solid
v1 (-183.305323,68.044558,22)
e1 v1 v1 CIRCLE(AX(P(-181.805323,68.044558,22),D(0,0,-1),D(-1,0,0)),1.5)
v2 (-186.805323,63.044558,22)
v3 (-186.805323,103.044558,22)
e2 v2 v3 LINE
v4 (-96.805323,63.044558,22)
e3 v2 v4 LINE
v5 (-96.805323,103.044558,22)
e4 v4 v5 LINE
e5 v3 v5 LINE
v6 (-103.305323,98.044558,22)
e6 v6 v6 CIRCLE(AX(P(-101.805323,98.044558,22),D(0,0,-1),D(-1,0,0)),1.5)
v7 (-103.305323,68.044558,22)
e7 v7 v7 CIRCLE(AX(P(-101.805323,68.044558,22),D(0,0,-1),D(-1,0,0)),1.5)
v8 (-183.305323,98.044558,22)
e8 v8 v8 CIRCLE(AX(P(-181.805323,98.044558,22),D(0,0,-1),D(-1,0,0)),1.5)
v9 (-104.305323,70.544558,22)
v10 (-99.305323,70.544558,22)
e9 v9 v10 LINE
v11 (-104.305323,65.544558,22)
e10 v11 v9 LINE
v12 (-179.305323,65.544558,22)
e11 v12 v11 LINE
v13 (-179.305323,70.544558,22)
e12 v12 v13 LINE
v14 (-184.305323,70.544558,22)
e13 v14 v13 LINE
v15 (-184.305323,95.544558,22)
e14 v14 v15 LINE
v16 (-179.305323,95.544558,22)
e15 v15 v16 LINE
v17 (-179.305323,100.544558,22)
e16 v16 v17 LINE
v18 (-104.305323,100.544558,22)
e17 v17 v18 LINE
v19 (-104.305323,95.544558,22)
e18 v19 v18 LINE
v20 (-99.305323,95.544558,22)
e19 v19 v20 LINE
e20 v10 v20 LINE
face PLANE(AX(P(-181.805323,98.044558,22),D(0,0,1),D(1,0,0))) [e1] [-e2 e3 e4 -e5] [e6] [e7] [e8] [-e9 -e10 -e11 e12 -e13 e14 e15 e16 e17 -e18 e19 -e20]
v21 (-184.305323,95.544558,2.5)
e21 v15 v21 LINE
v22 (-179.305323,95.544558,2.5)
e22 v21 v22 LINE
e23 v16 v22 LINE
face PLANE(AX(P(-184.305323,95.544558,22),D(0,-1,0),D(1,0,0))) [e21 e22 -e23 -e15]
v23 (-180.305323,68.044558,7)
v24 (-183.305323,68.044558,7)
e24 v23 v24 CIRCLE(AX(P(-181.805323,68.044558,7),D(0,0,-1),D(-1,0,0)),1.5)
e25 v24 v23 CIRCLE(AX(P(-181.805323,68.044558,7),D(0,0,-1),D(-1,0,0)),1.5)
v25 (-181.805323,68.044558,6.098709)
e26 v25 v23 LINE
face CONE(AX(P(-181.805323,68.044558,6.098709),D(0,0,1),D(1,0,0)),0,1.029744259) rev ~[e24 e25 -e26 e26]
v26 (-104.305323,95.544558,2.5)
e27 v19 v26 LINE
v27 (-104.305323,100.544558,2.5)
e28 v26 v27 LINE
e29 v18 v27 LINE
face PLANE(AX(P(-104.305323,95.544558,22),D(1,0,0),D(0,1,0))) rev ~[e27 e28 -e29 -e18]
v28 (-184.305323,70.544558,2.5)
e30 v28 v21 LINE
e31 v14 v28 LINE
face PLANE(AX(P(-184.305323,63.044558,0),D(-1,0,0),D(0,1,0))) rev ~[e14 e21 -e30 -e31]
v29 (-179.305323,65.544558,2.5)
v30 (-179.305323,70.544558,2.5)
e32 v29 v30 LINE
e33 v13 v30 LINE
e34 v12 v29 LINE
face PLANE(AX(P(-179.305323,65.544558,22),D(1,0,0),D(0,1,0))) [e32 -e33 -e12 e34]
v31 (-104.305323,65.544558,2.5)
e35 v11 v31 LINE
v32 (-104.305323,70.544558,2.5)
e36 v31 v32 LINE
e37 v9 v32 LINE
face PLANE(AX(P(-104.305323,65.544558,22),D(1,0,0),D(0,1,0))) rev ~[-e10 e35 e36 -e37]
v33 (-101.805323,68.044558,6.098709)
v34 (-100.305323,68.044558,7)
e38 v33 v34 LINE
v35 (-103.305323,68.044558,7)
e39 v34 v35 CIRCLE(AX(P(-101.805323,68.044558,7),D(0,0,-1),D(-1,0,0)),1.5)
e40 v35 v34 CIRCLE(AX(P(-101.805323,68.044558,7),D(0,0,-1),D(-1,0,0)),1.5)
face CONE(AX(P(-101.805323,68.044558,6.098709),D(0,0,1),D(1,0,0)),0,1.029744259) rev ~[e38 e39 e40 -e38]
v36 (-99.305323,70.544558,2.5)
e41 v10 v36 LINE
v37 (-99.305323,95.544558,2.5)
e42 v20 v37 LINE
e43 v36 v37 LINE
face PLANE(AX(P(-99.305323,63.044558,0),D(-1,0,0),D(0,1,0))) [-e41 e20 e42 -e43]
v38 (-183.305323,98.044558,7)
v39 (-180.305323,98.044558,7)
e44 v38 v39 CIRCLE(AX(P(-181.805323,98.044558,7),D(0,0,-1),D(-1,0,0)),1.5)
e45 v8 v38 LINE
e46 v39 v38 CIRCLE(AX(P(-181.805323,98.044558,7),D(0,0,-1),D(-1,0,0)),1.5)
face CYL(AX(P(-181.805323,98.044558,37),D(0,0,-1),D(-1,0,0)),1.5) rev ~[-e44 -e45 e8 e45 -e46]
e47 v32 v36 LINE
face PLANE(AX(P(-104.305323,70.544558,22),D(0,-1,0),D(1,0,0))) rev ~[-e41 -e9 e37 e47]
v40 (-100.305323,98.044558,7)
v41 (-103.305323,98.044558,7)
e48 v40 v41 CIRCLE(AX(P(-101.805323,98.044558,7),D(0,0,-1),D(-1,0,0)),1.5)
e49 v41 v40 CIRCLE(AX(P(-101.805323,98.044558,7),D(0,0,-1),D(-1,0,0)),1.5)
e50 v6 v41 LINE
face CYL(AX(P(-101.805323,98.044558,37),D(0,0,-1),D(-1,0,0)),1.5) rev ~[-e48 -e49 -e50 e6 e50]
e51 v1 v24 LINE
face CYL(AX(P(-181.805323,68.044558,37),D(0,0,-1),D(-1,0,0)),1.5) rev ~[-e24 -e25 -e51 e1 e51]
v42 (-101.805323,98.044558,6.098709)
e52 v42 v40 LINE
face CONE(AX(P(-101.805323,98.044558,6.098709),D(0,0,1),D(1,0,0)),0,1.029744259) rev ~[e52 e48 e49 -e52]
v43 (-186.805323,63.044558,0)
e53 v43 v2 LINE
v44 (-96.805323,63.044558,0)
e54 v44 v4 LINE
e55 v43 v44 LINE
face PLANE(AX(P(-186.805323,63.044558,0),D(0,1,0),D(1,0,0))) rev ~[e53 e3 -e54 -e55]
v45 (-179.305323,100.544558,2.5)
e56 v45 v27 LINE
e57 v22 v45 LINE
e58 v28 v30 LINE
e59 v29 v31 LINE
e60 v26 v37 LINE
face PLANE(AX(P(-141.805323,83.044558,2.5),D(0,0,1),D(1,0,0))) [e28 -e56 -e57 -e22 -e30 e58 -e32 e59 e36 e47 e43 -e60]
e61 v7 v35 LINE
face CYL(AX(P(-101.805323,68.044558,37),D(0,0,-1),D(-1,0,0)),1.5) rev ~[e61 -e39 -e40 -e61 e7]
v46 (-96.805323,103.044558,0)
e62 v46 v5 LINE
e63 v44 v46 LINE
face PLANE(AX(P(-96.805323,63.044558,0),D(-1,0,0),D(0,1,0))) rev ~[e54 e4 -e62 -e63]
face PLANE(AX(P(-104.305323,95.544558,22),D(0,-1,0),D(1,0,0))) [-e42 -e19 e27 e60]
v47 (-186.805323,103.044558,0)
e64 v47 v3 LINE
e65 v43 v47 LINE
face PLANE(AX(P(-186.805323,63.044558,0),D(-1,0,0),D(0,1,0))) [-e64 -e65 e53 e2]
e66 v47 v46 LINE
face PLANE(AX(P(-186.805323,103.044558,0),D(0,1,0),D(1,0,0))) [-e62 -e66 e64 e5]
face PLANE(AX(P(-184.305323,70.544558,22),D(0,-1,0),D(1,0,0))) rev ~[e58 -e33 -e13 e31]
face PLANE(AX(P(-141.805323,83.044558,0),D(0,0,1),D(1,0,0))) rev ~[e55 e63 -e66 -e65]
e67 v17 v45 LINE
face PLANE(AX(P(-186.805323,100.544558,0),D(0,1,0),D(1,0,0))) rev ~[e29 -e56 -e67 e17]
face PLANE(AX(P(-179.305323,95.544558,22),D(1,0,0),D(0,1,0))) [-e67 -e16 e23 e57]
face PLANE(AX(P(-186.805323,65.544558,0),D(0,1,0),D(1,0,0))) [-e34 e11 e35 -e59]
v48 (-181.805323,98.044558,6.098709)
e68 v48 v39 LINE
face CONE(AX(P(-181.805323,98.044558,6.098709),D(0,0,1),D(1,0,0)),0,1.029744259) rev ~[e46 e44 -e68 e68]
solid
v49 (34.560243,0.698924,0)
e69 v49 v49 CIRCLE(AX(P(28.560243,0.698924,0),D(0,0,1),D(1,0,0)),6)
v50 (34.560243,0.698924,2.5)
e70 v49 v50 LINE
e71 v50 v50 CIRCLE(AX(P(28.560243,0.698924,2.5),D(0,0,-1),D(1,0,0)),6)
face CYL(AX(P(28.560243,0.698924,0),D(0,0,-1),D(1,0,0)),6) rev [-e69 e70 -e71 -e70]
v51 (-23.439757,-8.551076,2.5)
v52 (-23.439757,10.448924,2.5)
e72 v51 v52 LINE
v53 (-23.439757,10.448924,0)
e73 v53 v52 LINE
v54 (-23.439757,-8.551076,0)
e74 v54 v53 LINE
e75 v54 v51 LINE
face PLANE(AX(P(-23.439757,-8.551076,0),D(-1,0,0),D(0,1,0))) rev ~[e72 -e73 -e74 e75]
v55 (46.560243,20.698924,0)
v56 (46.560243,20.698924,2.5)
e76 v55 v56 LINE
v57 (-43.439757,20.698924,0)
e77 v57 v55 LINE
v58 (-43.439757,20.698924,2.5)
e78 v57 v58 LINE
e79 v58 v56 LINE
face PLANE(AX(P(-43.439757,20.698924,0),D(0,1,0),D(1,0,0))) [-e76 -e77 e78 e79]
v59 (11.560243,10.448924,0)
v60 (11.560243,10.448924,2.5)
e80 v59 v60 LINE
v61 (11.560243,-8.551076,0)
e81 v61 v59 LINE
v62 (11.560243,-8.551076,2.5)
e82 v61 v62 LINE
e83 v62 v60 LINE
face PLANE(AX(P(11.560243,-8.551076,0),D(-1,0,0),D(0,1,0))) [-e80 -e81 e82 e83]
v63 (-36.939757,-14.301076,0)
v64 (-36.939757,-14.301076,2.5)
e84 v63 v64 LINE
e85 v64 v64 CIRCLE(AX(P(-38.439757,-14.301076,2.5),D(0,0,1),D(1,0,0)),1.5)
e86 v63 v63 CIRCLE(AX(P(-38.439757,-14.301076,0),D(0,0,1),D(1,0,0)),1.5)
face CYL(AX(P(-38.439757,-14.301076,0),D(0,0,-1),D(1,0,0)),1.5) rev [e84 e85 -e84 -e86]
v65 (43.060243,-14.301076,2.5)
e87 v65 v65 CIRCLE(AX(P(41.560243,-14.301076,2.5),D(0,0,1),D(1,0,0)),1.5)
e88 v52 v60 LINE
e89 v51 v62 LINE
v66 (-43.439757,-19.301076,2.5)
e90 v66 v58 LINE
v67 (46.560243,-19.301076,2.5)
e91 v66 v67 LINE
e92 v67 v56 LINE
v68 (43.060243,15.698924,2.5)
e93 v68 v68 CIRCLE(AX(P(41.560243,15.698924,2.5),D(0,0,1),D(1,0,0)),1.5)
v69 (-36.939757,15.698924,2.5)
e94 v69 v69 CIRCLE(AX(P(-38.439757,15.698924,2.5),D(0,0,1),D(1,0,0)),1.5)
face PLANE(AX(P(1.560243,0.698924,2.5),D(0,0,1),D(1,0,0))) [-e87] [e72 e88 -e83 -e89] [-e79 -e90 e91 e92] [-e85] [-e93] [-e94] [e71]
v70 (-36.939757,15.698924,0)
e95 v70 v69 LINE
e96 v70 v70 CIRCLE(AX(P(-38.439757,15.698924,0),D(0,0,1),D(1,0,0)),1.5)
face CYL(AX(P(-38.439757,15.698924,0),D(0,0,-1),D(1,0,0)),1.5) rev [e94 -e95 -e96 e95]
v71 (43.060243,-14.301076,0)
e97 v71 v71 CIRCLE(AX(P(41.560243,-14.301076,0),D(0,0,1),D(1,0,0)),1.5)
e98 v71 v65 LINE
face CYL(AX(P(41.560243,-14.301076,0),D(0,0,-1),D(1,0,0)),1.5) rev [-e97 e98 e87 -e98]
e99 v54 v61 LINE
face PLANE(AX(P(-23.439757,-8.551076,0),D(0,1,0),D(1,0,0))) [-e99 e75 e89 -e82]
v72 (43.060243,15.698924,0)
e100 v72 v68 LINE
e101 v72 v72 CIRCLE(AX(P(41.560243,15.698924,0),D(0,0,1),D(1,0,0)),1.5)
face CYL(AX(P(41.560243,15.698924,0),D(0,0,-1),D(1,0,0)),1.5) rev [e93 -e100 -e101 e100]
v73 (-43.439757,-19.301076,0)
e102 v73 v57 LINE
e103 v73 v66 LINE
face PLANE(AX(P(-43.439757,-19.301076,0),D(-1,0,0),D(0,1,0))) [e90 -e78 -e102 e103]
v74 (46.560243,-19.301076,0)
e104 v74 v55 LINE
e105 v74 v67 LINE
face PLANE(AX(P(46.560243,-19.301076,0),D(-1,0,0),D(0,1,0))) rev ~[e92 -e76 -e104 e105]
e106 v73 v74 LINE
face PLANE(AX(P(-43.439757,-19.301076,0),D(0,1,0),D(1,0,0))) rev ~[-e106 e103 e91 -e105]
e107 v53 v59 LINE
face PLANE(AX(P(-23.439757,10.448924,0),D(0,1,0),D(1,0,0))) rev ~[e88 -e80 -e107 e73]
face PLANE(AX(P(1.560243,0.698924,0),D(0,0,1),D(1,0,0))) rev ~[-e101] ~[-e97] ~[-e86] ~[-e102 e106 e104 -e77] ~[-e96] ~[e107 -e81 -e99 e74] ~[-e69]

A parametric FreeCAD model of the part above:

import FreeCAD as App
import Part
import Sketcher
Q = App.Units.Quantity


def faces_at(feature, points):
    """Names of the faces that lie closest to the given points."""
    faces = feature.Shape.Faces
    near = lambda p: min(range(len(faces)), key=lambda i: faces[i].distToShape(Part.Vertex(*p))[0])
    return sorted({f"Face{near(p) + 1}" for p in points})

doc = App.newDocument("Part")
body = doc.addObject("PartDesign::Body", "Body")

sketch1 = body.newObject("Sketcher::SketchObject", "Sketch")
sketch1.AttachmentSupport = (doc.getObject("XY_Plane"), [""])
sketch1.MapMode = "FlatFace"
sketch1.addGeometry([
    Part.LineSegment(App.Vector(-186.805323, 103.044558, 0), App.Vector(-186.805323, 63.044558, 0)),
    Part.LineSegment(App.Vector(-186.805323, 63.044558, 0), App.Vector(-96.805323, 63.044558, 0)),
    Part.LineSegment(App.Vector(-96.805323, 63.044558, 0), App.Vector(-96.805323, 103.044558, 0)),
    Part.LineSegment(App.Vector(-96.805323, 103.044558, 0), App.Vector(-186.805323, 103.044558, 0)),
], False)
sketch1.addConstraint([
    Sketcher.Constraint("Coincident", 0, 2, 1, 1),
    Sketcher.Constraint("Coincident", 1, 2, 2, 1),
    Sketcher.Constraint("Coincident", 2, 2, 3, 1),
    Sketcher.Constraint("Coincident", 3, 2, 0, 1),
    Sketcher.Constraint("Vertical", 0),
    Sketcher.Constraint("Horizontal", 1),
    Sketcher.Constraint("Vertical", 2),
    Sketcher.Constraint("Horizontal", 3),
    Sketcher.Constraint("DistanceX", 1, 1, 1, 2, Q("90 mm")),
    Sketcher.Constraint("DistanceY", 0, 2, 0, 1, Q("40 mm")),
    Sketcher.Constraint("DistanceY", -1, 1, 0, 2, Q("63.044558 mm")),
    Sketcher.Constraint("DistanceX", 0, 2, -1, 1, Q("186.805323 mm")),
])
pad1 = body.newObject("PartDesign::Pad", "Pad")
pad1.Profile = sketch1
pad1.Length = 22
doc.recompute()

thickness = body.newObject("PartDesign::Thickness", "Thickness")
thickness.Base = (pad1, faces_at(pad1, [(-141.805, 83.045, 22)]))
thickness.Value = 2.5
thickness.Reversed = True
thickness.Join = "Arc"

sketch2 = body.newObject("Sketcher::SketchObject", "Sketch001")
sketch2.AttachmentSupport = (doc.getObject("XY_Plane"), [""])
sketch2.MapMode = "FlatFace"
sketch2.AttachmentOffset = App.Placement(App.Vector(0, 0, 22), App.Rotation())
sketch2.addGeometry([
    Part.LineSegment(App.Vector(-184.305323, 100.544558, 0), App.Vector(-184.305323, 95.544558, 0)),
    Part.LineSegment(App.Vector(-184.305323, 95.544558, 0), App.Vector(-179.305323, 95.544558, 0)),
    Part.LineSegment(App.Vector(-179.305323, 95.544558, 0), App.Vector(-179.305323, 100.544558, 0)),
    Part.LineSegment(App.Vector(-179.305323, 100.544558, 0), App.Vector(-184.305323, 100.544558, 0)),
    Part.LineSegment(App.Vector(-104.305323, 100.544558, 0), App.Vector(-104.305323, 95.544558, 0)),
    Part.LineSegment(App.Vector(-104.305323, 95.544558, 0), App.Vector(-99.305323, 95.544558, 0)),
    Part.LineSegment(App.Vector(-99.305323, 95.544558, 0), App.Vector(-99.305323, 100.544558, 0)),
    Part.LineSegment(App.Vector(-99.305323, 100.544558, 0), App.Vector(-104.305323, 100.544558, 0)),
    Part.LineSegment(App.Vector(-104.305323, 70.544558, 0), App.Vector(-104.305323, 65.544558, 0)),
    Part.LineSegment(App.Vector(-104.305323, 65.544558, 0), App.Vector(-99.305323, 65.544558, 0)),
    Part.LineSegment(App.Vector(-99.305323, 65.544558, 0), App.Vector(-99.305323, 70.544558, 0)),
    Part.LineSegment(App.Vector(-99.305323, 70.544558, 0), App.Vector(-104.305323, 70.544558, 0)),
    Part.LineSegment(App.Vector(-184.305323, 70.544558, 0), App.Vector(-184.305323, 65.544558, 0)),
    Part.LineSegment(App.Vector(-184.305323, 65.544558, 0), App.Vector(-179.305323, 65.544558, 0)),
    Part.LineSegment(App.Vector(-179.305323, 65.544558, 0), App.Vector(-179.305323, 70.544558, 0)),
    Part.LineSegment(App.Vector(-179.305323, 70.544558, 0), App.Vector(-184.305323, 70.544558, 0)),
], False)
sketch2.addConstraint([
    Sketcher.Constraint("Coincident", 0, 2, 1, 1),
    Sketcher.Constraint("Coincident", 1, 2, 2, 1),
    Sketcher.Constraint("Coincident", 2, 2, 3, 1),
    Sketcher.Constraint("Coincident", 3, 2, 0, 1),
    Sketcher.Constraint("Coincident", 4, 2, 5, 1),
    Sketcher.Constraint("Coincident", 5, 2, 6, 1),
    Sketcher.Constraint("Coincident", 6, 2, 7, 1),
    Sketcher.Constraint("Coincident", 7, 2, 4, 1),
    Sketcher.Constraint("Coincident", 8, 2, 9, 1),
    Sketcher.Constraint("Coincident", 9, 2, 10, 1),
    Sketcher.Constraint("Coincident", 10, 2, 11, 1),
    Sketcher.Constraint("Coincident", 11, 2, 8, 1),
    Sketcher.Constraint("Coincident", 12, 2, 13, 1),
    Sketcher.Constraint("Coincident", 13, 2, 14, 1),
    Sketcher.Constraint("Coincident", 14, 2, 15, 1),
    Sketcher.Constraint("Coincident", 15, 2, 12, 1),
    Sketcher.Constraint("Vertical", 0),
    Sketcher.Constraint("Horizontal", 1),
    Sketcher.Constraint("Vertical", 2),
    Sketcher.Constraint("Horizontal", 3),
    Sketcher.Constraint("Vertical", 4),
    Sketcher.Constraint("Horizontal", 5),
    Sketcher.Constraint("Vertical", 6),
    Sketcher.Constraint("Horizontal", 7),
    Sketcher.Constraint("Vertical", 8),
    Sketcher.Constraint("Horizontal", 9),
    Sketcher.Constraint("Vertical", 10),
    Sketcher.Constraint("Horizontal", 11),
    Sketcher.Constraint("Vertical", 12),
    Sketcher.Constraint("Horizontal", 13),
    Sketcher.Constraint("Vertical", 14),
    Sketcher.Constraint("Horizontal", 15),
    Sketcher.Constraint("Horizontal", 1, 2, 4, 2),
    Sketcher.Constraint("Horizontal", 3, 2, 6, 2),
    Sketcher.Constraint("Horizontal", 9, 2, 12, 2),
    Sketcher.Constraint("Horizontal", 11, 2, 14, 2),
    Sketcher.Constraint("Vertical", 7, 2, 8, 2),
    Sketcher.Constraint("Vertical", 6, 2, 9, 2),
    Sketcher.Constraint("Vertical", 3, 2, 12, 2),
    Sketcher.Constraint("Vertical", 2, 2, 13, 2),
    Sketcher.Constraint("Equal", 3, 5),
    Sketcher.Constraint("Equal", 15, 0),
    Sketcher.Constraint("Equal", 6, 8),
    Sketcher.Constraint("DistanceX", 1, 1, 1, 2, Q("5 mm")),
    Sketcher.Constraint("DistanceX", 1, 2, 4, 2, Q("75 mm")),
    Sketcher.Constraint("DistanceY", 8, 2, 4, 2, Q("30 mm")),
    Sketcher.Constraint("DistanceY", -1, 1, 0, 2, Q("95.544558 mm")),
    Sketcher.Constraint("DistanceX", 0, 2, -1, 1, Q("184.305323 mm")),
])
pad2 = body.newObject("PartDesign::Pad", "Pad001")
pad2.Profile = sketch2
pad2.Length = 22
pad2.Reversed = True

sketch3 = body.newObject("Sketcher::SketchObject", "Sketch002")
sketch3.AttachmentSupport = (doc.getObject("XY_Plane"), [""])
sketch3.MapMode = "FlatFace"
sketch3.AttachmentOffset = App.Placement(App.Vector(0, 0, 22), App.Rotation())
sketch3.addGeometry([
    Part.Circle(App.Vector(-181.805323, 98.044558, 0), App.Vector(0, 0, 1), 1.5),
    Part.Circle(App.Vector(-181.805323, 68.044558, 0), App.Vector(0, 0, 1), 1.5),
    Part.Circle(App.Vector(-101.805323, 98.044558, 0), App.Vector(0, 0, 1), 1.5),
    Part.Circle(App.Vector(-101.805323, 68.044558, 0), App.Vector(0, 0, 1), 1.5),
], False)
sketch3.addConstraint([
    Sketcher.Constraint("Equal", 0, 1),
    Sketcher.Constraint("Equal", 1, 2),
    Sketcher.Constraint("Equal", 2, 3),
    Sketcher.Constraint("Horizontal", 0, 3, 2, 3),
    Sketcher.Constraint("Horizontal", 1, 3, 3, 3),
    Sketcher.Constraint("Vertical", 0, 3, 1, 3),
    Sketcher.Constraint("Vertical", 2, 3, 3, 3),
    Sketcher.Constraint("Diameter", 0, Q("3 mm")),
    Sketcher.Constraint("DistanceY", 1, 3, 0, 3, Q("30 mm")),
    Sketcher.Constraint("DistanceX", 0, 3, 2, 3, Q("80 mm")),
    Sketcher.Constraint("DistanceY", -1, 1, 0, 3, Q("98.044558 mm")),
    Sketcher.Constraint("DistanceX", 0, 3, -1, 1, Q("181.805323 mm")),
])
doc.recompute()
hole = body.newObject("PartDesign::Hole", "Hole")
hole.Profile = sketch3
hole.ThreadType = "None"
hole.Diameter = 3
hole.DepthType = "Dimension"
hole.Depth = 15
hole.DrillPoint = "Angled"
hole.DrillPointAngle = 118
body2 = doc.addObject("PartDesign::Body", "Body001")

sketch4 = body2.newObject("Sketcher::SketchObject", "Sketch003")
sketch4.AttachmentSupport = (doc.getObject("XY_Plane001"), [""])
sketch4.MapMode = "FlatFace"
sketch4.addGeometry([
    Part.LineSegment(App.Vector(-43.439757, 20.698924, 0), App.Vector(-43.439757, -19.301076, 0)),
    Part.LineSegment(App.Vector(-43.439757, -19.301076, 0), App.Vector(46.560243, -19.301076, 0)),
    Part.LineSegment(App.Vector(46.560243, -19.301076, 0), App.Vector(46.560243, 20.698924, 0)),
    Part.LineSegment(App.Vector(46.560243, 20.698924, 0), App.Vector(-43.439757, 20.698924, 0)),
    Part.Circle(App.Vector(-38.439757, -14.301076, 0), App.Vector(0, 0, 1), 1.5),
    Part.Circle(App.Vector(41.560243, -14.301076, 0), App.Vector(0, 0, 1), 1.5),
    Part.LineSegment(App.Vector(11.560243, -8.551076, 0), App.Vector(-23.439757, -8.551076, 0)),
    Part.LineSegment(App.Vector(-23.439757, -8.551076, 0), App.Vector(-23.439757, 10.448924, 0)),
    Part.LineSegment(App.Vector(-23.439757, 10.448924, 0), App.Vector(11.560243, 10.448924, 0)),
    Part.LineSegment(App.Vector(11.560243, 10.448924, 0), App.Vector(11.560243, -8.551076, 0)),
    Part.Circle(App.Vector(-38.439757, 15.698924, 0), App.Vector(0, 0, 1), 1.5),
    Part.Circle(App.Vector(41.560243, 15.698924, 0), App.Vector(0, 0, 1), 1.5),
], False)
sketch4.addConstraint([
    Sketcher.Constraint("Coincident", 0, 2, 1, 1),
    Sketcher.Constraint("Coincident", 1, 2, 2, 1),
    Sketcher.Constraint("Coincident", 2, 2, 3, 1),
    Sketcher.Constraint("Coincident", 3, 2, 0, 1),
    Sketcher.Constraint("Coincident", 6, 2, 7, 1),
    Sketcher.Constraint("Coincident", 7, 2, 8, 1),
    Sketcher.Constraint("Coincident", 8, 2, 9, 1),
    Sketcher.Constraint("Coincident", 9, 2, 6, 1),
    Sketcher.Constraint("Vertical", 0),
    Sketcher.Constraint("Horizontal", 1),
    Sketcher.Constraint("Vertical", 2),
    Sketcher.Constraint("Horizontal", 3),
    Sketcher.Constraint("Horizontal", 6),
    Sketcher.Constraint("Vertical", 7),
    Sketcher.Constraint("Horizontal", 8),
    Sketcher.Constraint("Vertical", 9),
    Sketcher.Constraint("Equal", 4, 5),
    Sketcher.Constraint("Equal", 5, 10),
    Sketcher.Constraint("Equal", 10, 11),
    Sketcher.Constraint("Horizontal", 4, 3, 5, 3),
    Sketcher.Constraint("Horizontal", 10, 3, 11, 3),
    Sketcher.Constraint("Vertical", 4, 3, 10, 3),
    Sketcher.Constraint("Vertical", 5, 3, 11, 3),
    Sketcher.Constraint("Diameter", 4, Q("3 mm")),
    Sketcher.Constraint("DistanceX", 1, 1, 1, 2, Q("90 mm")),
    Sketcher.Constraint("DistanceX", 6, 2, 6, 1, Q("35 mm")),
    Sketcher.Constraint("DistanceY", 0, 2, 0, 1, Q("40 mm")),
    Sketcher.Constraint("DistanceY", 7, 1, 7, 2, Q("19 mm")),
    Sketcher.Constraint("DistanceX", 4, 3, 5, 3, Q("80 mm")),
    Sketcher.Constraint("DistanceY", 4, 3, 10, 3, Q("30 mm")),
    Sketcher.Constraint("DistanceX", 0, 2, 4, 3, Q("5 mm")),
    Sketcher.Constraint("DistanceY", 0, 2, 4, 3, Q("5 mm")),
    Sketcher.Constraint("DistanceX", 4, 3, 6, 2, Q("15 mm")),
    Sketcher.Constraint("DistanceY", 4, 3, 6, 2, Q("5.75 mm")),
    Sketcher.Constraint("DistanceX", 4, 3, -1, 1, Q("38.439757 mm")),
    Sketcher.Constraint("DistanceY", 4, 3, -1, 1, Q("14.301076 mm")),
])
pad3 = body2.newObject("PartDesign::Pad", "Pad002")
pad3.Profile = sketch4
pad3.Length = 2.5

sketch5 = body2.newObject("Sketcher::SketchObject", "Sketch004")
sketch5.AttachmentSupport = (doc.getObject("XY_Plane001"), [""])
sketch5.MapMode = "FlatFace"
sketch5.addGeometry(Part.Circle(App.Vector(28.560243, 0.698924, 0), App.Vector(0, 0, 1), 6), False)
sketch5.addConstraint([
    Sketcher.Constraint("Diameter", 0, Q("12 mm")),
    Sketcher.Constraint("DistanceX", -1, 1, 0, 3, Q("28.560243 mm")),
    Sketcher.Constraint("DistanceY", -1, 1, 0, 3, Q("0.698924 mm")),
])
pocket1 = body2.newObject("PartDesign::Pocket", "Pocket")
pocket1.Profile = sketch5
pocket1.Length = 25
pocket1.Reversed = True

doc.recompute()
